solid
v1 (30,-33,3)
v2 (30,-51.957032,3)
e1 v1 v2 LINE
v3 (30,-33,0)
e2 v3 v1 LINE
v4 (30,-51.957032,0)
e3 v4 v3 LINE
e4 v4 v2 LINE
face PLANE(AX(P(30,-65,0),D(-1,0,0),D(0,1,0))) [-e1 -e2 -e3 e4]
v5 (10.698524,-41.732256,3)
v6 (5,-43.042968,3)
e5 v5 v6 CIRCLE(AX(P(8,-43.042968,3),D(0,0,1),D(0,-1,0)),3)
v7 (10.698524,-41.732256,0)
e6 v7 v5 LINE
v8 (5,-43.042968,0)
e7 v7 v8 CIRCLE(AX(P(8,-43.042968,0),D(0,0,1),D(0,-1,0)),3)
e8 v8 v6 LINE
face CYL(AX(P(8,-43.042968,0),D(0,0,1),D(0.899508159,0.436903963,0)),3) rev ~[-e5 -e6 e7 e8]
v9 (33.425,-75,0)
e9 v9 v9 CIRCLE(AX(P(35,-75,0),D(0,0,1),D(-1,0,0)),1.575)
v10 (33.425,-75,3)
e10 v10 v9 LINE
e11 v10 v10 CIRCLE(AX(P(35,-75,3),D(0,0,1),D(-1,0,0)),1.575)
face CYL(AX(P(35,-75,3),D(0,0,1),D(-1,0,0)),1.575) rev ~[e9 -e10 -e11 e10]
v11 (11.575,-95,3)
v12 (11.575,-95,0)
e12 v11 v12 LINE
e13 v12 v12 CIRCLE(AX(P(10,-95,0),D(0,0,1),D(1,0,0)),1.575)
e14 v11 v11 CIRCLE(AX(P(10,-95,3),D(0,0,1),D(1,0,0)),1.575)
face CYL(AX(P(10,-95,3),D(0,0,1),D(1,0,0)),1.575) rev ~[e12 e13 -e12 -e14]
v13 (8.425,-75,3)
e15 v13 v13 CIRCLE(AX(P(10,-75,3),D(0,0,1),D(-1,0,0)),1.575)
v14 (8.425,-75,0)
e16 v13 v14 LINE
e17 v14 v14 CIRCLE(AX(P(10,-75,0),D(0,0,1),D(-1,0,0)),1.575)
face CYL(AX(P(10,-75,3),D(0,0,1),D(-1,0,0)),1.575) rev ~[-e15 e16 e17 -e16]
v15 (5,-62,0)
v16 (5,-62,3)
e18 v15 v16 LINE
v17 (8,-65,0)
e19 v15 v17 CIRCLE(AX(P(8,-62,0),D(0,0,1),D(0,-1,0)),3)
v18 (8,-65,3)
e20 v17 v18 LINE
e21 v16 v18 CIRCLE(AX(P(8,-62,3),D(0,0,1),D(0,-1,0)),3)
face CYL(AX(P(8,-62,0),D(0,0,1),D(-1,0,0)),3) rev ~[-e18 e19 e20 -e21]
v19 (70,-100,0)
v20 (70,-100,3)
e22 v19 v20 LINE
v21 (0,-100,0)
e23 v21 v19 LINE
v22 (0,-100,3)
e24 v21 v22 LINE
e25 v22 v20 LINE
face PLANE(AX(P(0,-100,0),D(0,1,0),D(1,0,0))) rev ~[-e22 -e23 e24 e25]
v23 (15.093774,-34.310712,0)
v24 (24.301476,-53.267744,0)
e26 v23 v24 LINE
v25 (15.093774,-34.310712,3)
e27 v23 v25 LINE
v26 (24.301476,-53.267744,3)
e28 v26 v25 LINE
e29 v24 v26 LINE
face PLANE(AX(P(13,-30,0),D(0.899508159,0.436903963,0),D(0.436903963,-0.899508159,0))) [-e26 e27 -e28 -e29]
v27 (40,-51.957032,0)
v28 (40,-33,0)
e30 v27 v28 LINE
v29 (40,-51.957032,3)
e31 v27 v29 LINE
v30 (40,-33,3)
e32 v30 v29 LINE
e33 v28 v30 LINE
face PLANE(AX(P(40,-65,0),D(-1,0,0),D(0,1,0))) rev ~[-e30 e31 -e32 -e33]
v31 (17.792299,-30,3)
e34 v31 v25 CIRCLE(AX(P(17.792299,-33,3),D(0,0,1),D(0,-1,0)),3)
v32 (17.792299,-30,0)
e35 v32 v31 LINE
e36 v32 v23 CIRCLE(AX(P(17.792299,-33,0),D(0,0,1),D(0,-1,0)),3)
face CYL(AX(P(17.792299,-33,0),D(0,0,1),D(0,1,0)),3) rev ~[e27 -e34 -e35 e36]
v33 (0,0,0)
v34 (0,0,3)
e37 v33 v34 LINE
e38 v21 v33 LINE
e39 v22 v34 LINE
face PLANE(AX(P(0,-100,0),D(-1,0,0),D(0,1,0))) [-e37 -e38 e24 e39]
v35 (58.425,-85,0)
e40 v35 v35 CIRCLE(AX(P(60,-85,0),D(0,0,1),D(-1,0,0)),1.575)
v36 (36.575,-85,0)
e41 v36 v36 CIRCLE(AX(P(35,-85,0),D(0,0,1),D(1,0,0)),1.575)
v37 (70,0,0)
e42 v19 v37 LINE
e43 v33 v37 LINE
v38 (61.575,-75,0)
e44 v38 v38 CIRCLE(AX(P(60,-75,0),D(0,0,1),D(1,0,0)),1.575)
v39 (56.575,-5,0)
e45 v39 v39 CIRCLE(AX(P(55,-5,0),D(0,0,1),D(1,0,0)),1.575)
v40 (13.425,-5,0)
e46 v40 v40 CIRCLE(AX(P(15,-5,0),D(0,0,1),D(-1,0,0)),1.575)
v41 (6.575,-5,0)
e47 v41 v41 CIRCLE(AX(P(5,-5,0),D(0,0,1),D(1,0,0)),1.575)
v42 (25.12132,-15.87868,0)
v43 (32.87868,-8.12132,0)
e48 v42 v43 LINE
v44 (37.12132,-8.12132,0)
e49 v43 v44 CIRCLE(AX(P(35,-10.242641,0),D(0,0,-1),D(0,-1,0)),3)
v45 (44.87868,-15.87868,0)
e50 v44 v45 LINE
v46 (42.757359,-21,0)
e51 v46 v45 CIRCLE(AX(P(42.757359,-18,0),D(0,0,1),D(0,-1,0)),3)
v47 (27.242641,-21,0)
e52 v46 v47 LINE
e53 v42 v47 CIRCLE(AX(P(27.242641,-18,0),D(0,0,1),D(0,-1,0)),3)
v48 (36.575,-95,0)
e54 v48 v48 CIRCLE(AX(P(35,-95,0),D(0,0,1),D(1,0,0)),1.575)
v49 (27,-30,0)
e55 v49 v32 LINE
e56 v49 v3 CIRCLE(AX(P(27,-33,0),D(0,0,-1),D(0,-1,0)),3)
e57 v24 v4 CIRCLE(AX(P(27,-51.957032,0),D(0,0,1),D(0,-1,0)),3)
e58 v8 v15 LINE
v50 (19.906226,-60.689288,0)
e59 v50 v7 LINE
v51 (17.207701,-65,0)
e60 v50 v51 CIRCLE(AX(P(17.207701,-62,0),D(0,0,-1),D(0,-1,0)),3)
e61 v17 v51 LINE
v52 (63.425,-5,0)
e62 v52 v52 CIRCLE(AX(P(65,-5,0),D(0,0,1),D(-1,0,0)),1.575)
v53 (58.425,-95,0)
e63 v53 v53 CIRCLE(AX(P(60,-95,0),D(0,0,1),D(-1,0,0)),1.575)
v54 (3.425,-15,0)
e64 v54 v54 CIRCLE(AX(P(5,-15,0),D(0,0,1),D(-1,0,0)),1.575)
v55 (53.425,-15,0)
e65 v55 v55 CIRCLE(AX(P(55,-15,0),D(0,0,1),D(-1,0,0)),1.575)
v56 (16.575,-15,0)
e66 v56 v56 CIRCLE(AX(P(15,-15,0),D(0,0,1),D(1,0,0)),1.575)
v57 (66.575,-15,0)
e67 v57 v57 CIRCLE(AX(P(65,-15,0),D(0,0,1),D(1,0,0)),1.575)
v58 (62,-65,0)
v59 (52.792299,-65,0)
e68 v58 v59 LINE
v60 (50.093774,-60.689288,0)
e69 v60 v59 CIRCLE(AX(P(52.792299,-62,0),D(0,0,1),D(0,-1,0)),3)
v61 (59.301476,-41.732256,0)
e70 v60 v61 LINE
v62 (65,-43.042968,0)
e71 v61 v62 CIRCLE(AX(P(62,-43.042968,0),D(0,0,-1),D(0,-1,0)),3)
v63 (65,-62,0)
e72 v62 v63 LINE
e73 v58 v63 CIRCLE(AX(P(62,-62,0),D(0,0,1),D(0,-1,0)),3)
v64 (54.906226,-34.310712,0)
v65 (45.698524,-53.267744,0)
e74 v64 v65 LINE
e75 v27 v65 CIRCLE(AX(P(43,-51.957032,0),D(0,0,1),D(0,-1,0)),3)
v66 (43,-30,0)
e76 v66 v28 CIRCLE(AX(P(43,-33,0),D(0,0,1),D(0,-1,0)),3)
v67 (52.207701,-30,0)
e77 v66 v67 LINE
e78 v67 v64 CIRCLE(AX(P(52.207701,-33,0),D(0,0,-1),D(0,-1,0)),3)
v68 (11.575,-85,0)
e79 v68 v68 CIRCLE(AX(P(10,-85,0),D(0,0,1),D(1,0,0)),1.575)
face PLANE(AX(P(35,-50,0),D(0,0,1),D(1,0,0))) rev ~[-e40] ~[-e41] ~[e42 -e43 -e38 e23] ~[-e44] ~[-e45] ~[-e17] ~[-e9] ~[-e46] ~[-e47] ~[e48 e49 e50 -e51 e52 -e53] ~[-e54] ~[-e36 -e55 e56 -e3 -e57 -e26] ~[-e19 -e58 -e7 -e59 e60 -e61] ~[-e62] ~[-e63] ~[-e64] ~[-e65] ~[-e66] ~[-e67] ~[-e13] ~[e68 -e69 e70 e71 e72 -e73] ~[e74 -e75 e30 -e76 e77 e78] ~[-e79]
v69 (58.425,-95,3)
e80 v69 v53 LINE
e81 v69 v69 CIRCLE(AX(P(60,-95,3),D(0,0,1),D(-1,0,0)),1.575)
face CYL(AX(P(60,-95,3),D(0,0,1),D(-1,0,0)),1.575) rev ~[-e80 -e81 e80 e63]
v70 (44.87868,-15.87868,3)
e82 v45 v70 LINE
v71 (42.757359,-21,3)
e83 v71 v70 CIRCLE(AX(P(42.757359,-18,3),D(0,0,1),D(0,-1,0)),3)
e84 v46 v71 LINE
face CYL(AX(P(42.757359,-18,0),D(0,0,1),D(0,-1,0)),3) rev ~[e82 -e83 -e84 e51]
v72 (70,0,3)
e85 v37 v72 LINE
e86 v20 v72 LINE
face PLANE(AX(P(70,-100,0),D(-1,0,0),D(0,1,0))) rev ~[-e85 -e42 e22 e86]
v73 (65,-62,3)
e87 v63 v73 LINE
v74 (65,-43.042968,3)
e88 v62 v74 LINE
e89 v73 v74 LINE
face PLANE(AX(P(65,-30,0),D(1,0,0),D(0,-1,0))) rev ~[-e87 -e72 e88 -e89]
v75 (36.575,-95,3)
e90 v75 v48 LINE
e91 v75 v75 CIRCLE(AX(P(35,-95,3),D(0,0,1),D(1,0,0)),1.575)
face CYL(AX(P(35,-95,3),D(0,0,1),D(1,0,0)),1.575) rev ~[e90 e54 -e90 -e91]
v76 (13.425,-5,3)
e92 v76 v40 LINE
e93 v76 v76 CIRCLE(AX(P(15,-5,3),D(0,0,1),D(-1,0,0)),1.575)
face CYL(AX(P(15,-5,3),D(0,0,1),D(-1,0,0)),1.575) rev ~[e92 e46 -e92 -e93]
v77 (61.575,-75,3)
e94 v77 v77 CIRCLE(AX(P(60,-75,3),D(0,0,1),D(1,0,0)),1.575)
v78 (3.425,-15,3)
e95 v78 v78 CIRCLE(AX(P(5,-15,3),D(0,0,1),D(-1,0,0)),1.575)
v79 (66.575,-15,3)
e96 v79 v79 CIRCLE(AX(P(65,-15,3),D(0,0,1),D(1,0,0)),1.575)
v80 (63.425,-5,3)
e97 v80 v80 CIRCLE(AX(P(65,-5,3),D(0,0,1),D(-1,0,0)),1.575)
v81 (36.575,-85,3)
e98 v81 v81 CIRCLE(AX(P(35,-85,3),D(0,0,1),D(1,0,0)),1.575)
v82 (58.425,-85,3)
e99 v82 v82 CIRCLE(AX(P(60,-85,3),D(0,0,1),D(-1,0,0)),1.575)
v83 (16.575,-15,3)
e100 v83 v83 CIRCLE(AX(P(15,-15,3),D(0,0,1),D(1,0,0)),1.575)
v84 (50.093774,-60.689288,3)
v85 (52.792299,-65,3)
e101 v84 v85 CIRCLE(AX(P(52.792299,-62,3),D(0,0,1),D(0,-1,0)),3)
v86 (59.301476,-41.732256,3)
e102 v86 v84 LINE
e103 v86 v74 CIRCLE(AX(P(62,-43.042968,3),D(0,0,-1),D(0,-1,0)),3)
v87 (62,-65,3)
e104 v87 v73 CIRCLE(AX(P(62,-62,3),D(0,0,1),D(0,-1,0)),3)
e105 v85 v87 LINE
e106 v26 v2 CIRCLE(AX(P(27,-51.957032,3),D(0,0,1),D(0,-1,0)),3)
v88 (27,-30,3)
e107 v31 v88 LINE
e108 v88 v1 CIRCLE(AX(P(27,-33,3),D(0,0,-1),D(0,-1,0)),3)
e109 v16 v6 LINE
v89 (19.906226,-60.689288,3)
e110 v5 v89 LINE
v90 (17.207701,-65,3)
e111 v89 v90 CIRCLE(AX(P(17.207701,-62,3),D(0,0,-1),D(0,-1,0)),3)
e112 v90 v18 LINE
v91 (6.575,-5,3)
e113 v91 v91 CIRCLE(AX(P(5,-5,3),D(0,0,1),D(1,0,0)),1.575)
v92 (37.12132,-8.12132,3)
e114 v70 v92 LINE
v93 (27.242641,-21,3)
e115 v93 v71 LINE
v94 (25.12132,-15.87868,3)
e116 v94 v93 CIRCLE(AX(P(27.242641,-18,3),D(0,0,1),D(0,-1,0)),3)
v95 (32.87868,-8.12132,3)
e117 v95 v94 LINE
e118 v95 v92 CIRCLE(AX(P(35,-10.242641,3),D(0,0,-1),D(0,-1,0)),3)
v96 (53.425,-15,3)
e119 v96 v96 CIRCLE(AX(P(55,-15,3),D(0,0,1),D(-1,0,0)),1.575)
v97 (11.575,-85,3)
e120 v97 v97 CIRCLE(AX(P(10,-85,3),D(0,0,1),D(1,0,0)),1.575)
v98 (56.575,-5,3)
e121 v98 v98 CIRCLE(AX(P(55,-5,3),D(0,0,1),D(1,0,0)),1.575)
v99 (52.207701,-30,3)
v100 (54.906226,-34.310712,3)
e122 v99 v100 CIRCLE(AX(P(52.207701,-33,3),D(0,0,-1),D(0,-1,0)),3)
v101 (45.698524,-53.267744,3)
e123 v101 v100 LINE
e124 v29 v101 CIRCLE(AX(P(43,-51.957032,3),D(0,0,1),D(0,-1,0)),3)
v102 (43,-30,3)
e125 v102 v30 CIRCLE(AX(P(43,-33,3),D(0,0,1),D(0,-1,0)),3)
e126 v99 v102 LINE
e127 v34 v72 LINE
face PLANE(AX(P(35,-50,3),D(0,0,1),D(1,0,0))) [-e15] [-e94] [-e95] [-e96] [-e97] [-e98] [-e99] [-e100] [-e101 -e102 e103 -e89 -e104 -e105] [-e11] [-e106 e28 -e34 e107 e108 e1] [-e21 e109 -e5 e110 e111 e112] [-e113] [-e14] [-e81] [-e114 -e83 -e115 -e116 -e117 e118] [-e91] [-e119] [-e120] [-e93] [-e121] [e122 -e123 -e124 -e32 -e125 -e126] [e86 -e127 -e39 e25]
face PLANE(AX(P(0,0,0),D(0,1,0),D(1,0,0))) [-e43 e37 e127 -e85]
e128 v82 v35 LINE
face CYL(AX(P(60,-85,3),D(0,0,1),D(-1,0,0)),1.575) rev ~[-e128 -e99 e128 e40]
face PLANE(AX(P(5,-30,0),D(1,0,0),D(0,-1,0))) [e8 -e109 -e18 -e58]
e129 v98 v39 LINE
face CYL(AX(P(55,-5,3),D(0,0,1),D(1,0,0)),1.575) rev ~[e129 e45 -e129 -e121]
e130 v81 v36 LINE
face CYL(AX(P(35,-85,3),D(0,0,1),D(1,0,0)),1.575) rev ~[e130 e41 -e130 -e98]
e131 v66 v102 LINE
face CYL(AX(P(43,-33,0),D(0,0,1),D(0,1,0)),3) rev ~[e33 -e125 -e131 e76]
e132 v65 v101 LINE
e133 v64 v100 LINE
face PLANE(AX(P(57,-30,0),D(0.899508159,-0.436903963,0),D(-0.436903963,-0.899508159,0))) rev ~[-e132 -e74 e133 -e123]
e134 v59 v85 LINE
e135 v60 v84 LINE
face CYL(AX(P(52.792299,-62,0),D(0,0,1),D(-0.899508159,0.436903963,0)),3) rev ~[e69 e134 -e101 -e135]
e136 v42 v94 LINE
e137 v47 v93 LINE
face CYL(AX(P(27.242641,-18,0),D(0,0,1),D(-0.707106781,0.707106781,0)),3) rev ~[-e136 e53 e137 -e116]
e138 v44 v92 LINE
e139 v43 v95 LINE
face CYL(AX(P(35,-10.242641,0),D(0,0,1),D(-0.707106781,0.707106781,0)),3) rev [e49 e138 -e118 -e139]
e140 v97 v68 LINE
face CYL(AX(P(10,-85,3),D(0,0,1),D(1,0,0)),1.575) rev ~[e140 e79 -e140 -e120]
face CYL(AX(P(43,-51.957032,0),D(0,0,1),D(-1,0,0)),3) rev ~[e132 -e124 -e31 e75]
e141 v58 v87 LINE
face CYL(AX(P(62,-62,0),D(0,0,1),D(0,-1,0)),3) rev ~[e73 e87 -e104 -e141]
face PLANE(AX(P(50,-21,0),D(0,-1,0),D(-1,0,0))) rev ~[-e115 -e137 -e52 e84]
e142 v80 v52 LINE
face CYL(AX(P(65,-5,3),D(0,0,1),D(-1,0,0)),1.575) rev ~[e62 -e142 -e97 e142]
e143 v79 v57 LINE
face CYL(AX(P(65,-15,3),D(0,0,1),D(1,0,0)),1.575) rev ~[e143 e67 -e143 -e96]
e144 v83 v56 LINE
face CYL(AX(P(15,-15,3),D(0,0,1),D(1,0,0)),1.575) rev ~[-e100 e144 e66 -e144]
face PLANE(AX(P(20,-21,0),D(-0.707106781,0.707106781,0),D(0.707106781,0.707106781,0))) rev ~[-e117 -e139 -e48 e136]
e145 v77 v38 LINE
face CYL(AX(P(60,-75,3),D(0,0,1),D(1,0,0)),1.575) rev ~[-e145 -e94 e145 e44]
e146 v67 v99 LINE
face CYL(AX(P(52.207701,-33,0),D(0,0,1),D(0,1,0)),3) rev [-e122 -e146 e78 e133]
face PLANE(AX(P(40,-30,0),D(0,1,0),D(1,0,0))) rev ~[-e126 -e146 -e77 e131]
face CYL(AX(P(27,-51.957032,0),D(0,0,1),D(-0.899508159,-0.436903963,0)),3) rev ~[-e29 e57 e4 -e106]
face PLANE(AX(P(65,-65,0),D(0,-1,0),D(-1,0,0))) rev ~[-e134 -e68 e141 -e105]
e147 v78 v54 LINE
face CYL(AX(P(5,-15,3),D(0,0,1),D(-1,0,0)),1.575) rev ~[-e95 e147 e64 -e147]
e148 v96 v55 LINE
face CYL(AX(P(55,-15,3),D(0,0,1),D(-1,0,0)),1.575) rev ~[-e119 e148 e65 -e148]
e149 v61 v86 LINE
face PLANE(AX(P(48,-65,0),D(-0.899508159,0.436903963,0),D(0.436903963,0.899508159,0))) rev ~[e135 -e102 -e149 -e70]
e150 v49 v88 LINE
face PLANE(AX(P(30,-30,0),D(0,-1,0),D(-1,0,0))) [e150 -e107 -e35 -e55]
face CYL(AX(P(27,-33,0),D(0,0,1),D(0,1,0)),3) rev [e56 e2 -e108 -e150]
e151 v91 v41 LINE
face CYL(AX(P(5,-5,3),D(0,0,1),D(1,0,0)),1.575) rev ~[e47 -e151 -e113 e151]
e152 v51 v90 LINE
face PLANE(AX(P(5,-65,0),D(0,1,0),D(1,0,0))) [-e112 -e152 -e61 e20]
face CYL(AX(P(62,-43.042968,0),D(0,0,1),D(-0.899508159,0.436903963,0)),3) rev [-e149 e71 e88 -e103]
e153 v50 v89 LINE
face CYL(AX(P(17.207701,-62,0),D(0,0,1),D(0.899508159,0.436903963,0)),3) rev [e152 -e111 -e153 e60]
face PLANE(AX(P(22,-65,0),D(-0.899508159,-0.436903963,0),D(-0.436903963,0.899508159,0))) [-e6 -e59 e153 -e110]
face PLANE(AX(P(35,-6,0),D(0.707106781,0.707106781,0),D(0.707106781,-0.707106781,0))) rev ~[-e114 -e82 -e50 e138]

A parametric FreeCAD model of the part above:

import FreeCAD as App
import Part
import Sketcher


def edges_at(feature, points):
    """Names of the edges that pass closest to the given points."""
    edges = feature.Shape.Edges
    near = lambda p: min(range(len(edges)), key=lambda i: edges[i].distToShape(Part.Vertex(*p))[0])
    return sorted({f"Edge{near(p) + 1}" for p in points})

doc = App.newDocument("Part")
body = doc.addObject("PartDesign::Body", "Body")

sketch1 = body.newObject("Sketcher::SketchObject", "Sketch")
sketch1.AttachmentSupport = (doc.getObject("XY_Plane"), [""])
sketch1.MapMode = "FlatFace"
sketch1.addGeometry([
    Part.LineSegment(App.Vector(0, 0, 0), App.Vector(0, -100, 0)),
    Part.LineSegment(App.Vector(0, -100, 0), App.Vector(70, -100, 0)),
    Part.LineSegment(App.Vector(70, -100, 0), App.Vector(70, 0, 0)),
    Part.LineSegment(App.Vector(70, 0, 0), App.Vector(0, 0, 0)),
], False)
sketch1.addConstraint([
    Sketcher.Constraint("Coincident", 0, 2, 1, 1),
    Sketcher.Constraint("Coincident", 1, 2, 2, 1),
    Sketcher.Constraint("Coincident", 2, 2, 3, 1),
    Sketcher.Constraint("Coincident", 3, 2, 0, 1),
    Sketcher.Constraint("Vertical", 0),
    Sketcher.Constraint("Horizontal", 1),
    Sketcher.Constraint("Vertical", 2),
    Sketcher.Constraint("Horizontal", 3),
    Sketcher.Constraint("Coincident", 3, 2, -1, 1),
    Sketcher.Constraint("DistanceX", 1, 1, 1, 2, 70.0),
    Sketcher.Constraint("DistanceY", 0, 2, 0, 1, 100.0),
])
pad1 = body.newObject("PartDesign::Pad", "Pad")
pad1.Profile = sketch1
pad1.Length = 3

sketch2 = body.newObject("Sketcher::SketchObject", "Sketch001")
sketch2.AttachmentSupport = (doc.getObject("XY_Plane"), [""])
sketch2.MapMode = "FlatFace"
sketch2.AttachmentOffset = App.Placement(App.Vector(0, 0, 3), App.Rotation())
sketch2.addGeometry([
    Part.Circle(App.Vector(5, -5, 0), App.Vector(0, 0, 1), 1.6),
    Part.Circle(App.Vector(15, -5, 0), App.Vector(0, 0, 1), 1.6),
    Part.Circle(App.Vector(15, -15, 0), App.Vector(0, 0, 1), 1.6),
    Part.Circle(App.Vector(5, -15, 0), App.Vector(0, 0, 1), 1.6),
    Part.Circle(App.Vector(65, -15, 0), App.Vector(0, 0, 1), 1.6),
    Part.Circle(App.Vector(55, -15, 0), App.Vector(0, 0, 1), 1.6),
    Part.Circle(App.Vector(55, -5, 0), App.Vector(0, 0, 1), 1.6),
    Part.Circle(App.Vector(65, -5, 0), App.Vector(0, 0, 1), 1.6),
    Part.Circle(App.Vector(10, -85, 0), App.Vector(0, 0, 1), 1.6),
    Part.Circle(App.Vector(35, -85, 0), App.Vector(0, 0, 1), 1.6),
    Part.Circle(App.Vector(60, -85, 0), App.Vector(0, 0, 1), 1.6),
    Part.Circle(App.Vector(60, -75, 0), App.Vector(0, 0, 1), 1.6),
    Part.Circle(App.Vector(35, -75, 0), App.Vector(0, 0, 1), 1.6),
    Part.Circle(App.Vector(10, -75, 0), App.Vector(0, 0, 1), 1.6),
    Part.Circle(App.Vector(10, -95, 0), App.Vector(0, 0, 1), 1.6),
    Part.Circle(App.Vector(35, -95, 0), App.Vector(0, 0, 1), 1.6),
    Part.Circle(App.Vector(60, -95, 0), App.Vector(0, 0, 1), 1.6),
], False)
sketch2.addConstraint([
    Sketcher.Constraint("Equal", 0, 1),
    Sketcher.Constraint("Equal", 1, 2),
    Sketcher.Constraint("Equal", 2, 3),
    Sketcher.Constraint("Equal", 3, 4),
    Sketcher.Constraint("Equal", 4, 5),
    Sketcher.Constraint("Equal", 5, 6),
    Sketcher.Constraint("Equal", 6, 7),
    Sketcher.Constraint("Equal", 7, 8),
    Sketcher.Constraint("Equal", 8, 9),
    Sketcher.Constraint("Equal", 9, 10),
    Sketcher.Constraint("Equal", 10, 11),
    Sketcher.Constraint("Equal", 11, 12),
    Sketcher.Constraint("Equal", 12, 13),
    Sketcher.Constraint("Equal", 13, 14),
    Sketcher.Constraint("Equal", 14, 15),
    Sketcher.Constraint("Equal", 15, 16),
    Sketcher.Constraint("Horizontal", 0, 3, 1, 3),
    Sketcher.Constraint("Horizontal", 2, 3, 3, 3),
    Sketcher.Constraint("Horizontal", 3, 3, 4, 3),
    Sketcher.Constraint("Horizontal", 4, 3, 5, 3),
    Sketcher.Constraint("Horizontal", 1, 3, 6, 3),
    Sketcher.Constraint("Horizontal", 6, 3, 7, 3),
    Sketcher.Constraint("Horizontal", 8, 3, 9, 3),
    Sketcher.Constraint("Horizontal", 9, 3, 10, 3),
    Sketcher.Constraint("Horizontal", 11, 3, 12, 3),
    Sketcher.Constraint("Horizontal", 12, 3, 13, 3),
    Sketcher.Constraint("Horizontal", 14, 3, 15, 3),
    Sketcher.Constraint("Horizontal", 15, 3, 16, 3),
    Sketcher.Constraint("Vertical", 1, 3, 2, 3),
    Sketcher.Constraint("Vertical", 0, 3, 3, 3),
    Sketcher.Constraint("Vertical", 5, 3, 6, 3),
    Sketcher.Constraint("Vertical", 4, 3, 7, 3),
    Sketcher.Constraint("Vertical", 10, 3, 11, 3),
    Sketcher.Constraint("Vertical", 9, 3, 12, 3),
    Sketcher.Constraint("Vertical", 8, 3, 13, 3),
    Sketcher.Constraint("Vertical", 13, 3, 14, 3),
    Sketcher.Constraint("Vertical", 12, 3, 15, 3),
    Sketcher.Constraint("Vertical", 11, 3, 16, 3),
    Sketcher.Constraint("Diameter", 0, 3.15),
    Sketcher.Constraint("DistanceX", -1, 1, 0, 3, 5.0),
    Sketcher.Constraint("DistanceY", 0, 3, -1, 1, 5.0),
    Sketcher.Constraint("DistanceX", -1, 1, 1, 3, 15.0),
    Sketcher.Constraint("DistanceY", 2, 3, -1, 1, 15.0),
    Sketcher.Constraint("DistanceX", -1, 1, 4, 3, 65.0),
    Sketcher.Constraint("DistanceX", -1, 1, 5, 3, 55.0),
    Sketcher.Constraint("DistanceX", -1, 1, 8, 3, 10.0),
    Sketcher.Constraint("DistanceY", 8, 3, -1, 1, 85.0),
    Sketcher.Constraint("DistanceX", -1, 1, 9, 3, 35.0),
    Sketcher.Constraint("DistanceX", -1, 1, 10, 3, 60.0),
    Sketcher.Constraint("DistanceY", 11, 3, -1, 1, 75.0),
    Sketcher.Constraint("DistanceY", 14, 3, -1, 1, 95.0),
])
pocket1 = body.newObject("PartDesign::Pocket", "Pocket")
pocket1.Profile = sketch2
pocket1.Type = "ThroughAll"

sketch3 = body.newObject("Sketcher::SketchObject", "Sketch002")
sketch3.AttachmentSupport = (doc.getObject("XY_Plane"), [""])
sketch3.MapMode = "FlatFace"
sketch3.addGeometry([
    Part.LineSegment(App.Vector(65, -30, 0), App.Vector(65, -65, 0)),
    Part.LineSegment(App.Vector(65, -65, 0), App.Vector(48, -65, 0)),
    Part.LineSegment(App.Vector(48, -65, 0), App.Vector(65, -30, 0)),
    Part.LineSegment(App.Vector(57, -30, 0), App.Vector(40, -65, 0)),
    Part.LineSegment(App.Vector(40, -65, 0), App.Vector(40, -30, 0)),
    Part.LineSegment(App.Vector(40, -30, 0), App.Vector(57, -30, 0)),
    Part.LineSegment(App.Vector(13, -30, 0), App.Vector(30, -30, 0)),
    Part.LineSegment(App.Vector(30, -30, 0), App.Vector(30, -65, 0)),
    Part.LineSegment(App.Vector(30, -65, 0), App.Vector(13, -30, 0)),
    Part.LineSegment(App.Vector(5, -30, 0), App.Vector(22, -65, 0)),
    Part.LineSegment(App.Vector(22, -65, 0), App.Vector(5, -65, 0)),
    Part.LineSegment(App.Vector(5, -65, 0), App.Vector(5, -30, 0)),
    Part.LineSegment(App.Vector(35, -6, 0), App.Vector(50, -21, 0)),
    Part.LineSegment(App.Vector(50, -21, 0), App.Vector(20, -21, 0)),
    Part.LineSegment(App.Vector(20, -21, 0), App.Vector(35, -6, 0)),
], False)
sketch3.addConstraint([
    Sketcher.Constraint("Coincident", 0, 2, 1, 1),
    Sketcher.Constraint("Coincident", 1, 2, 2, 1),
    Sketcher.Constraint("Coincident", 2, 2, 0, 1),
    Sketcher.Constraint("Coincident", 3, 2, 4, 1),
    Sketcher.Constraint("Coincident", 4, 2, 5, 1),
    Sketcher.Constraint("Coincident", 5, 2, 3, 1),
    Sketcher.Constraint("Coincident", 6, 2, 7, 1),
    Sketcher.Constraint("Coincident", 7, 2, 8, 1),
    Sketcher.Constraint("Coincident", 8, 2, 6, 1),
    Sketcher.Constraint("Coincident", 9, 2, 10, 1),
    Sketcher.Constraint("Coincident", 10, 2, 11, 1),
    Sketcher.Constraint("Coincident", 11, 2, 9, 1),
    Sketcher.Constraint("Coincident", 12, 2, 13, 1),
    Sketcher.Constraint("Coincident", 13, 2, 14, 1),
    Sketcher.Constraint("Coincident", 14, 2, 12, 1),
    Sketcher.Constraint("Vertical", 0),
    Sketcher.Constraint("Horizontal", 1),
    Sketcher.Constraint("Vertical", 4),
    Sketcher.Constraint("Horizontal", 5),
    Sketcher.Constraint("Horizontal", 6),
    Sketcher.Constraint("Vertical", 7),
    Sketcher.Constraint("Horizontal", 10),
    Sketcher.Constraint("Vertical", 11),
    Sketcher.Constraint("Horizontal", 13),
    Sketcher.Constraint("Parallel", 2, 3),
    Sketcher.Constraint("Parallel", 8, 9),
    Sketcher.Constraint("Perpendicular", 12, 14),
    Sketcher.Constraint("Horizontal", 1, 2, 3, 2),
    Sketcher.Constraint("Horizontal", 2, 2, 4, 2),
    Sketcher.Constraint("Horizontal", 5, 2, 6, 2),
    Sketcher.Constraint("Horizontal", 3, 2, 7, 2),
    Sketcher.Constraint("Horizontal", 7, 2, 9, 2),
    Sketcher.Constraint("Horizontal", 8, 2, 11, 2),
    Sketcher.Constraint("Equal", 5, 6),
    Sketcher.Constraint("Equal", 12, 14),
    Sketcher.Constraint("DistanceX", 1, 2, 1, 1, 17.0),
    Sketcher.Constraint("DistanceX", 13, 2, 13, 1, 30.0),
    Sketcher.Constraint("DistanceY", 0, 2, 0, 1, 35.0),
    Sketcher.Constraint("DistanceX", -1, 1, 0, 2, 65.0),
    Sketcher.Constraint("DistanceY", 0, 2, -1, 1, 65.0),
    Sketcher.Constraint("DistanceX", -1, 1, 3, 2, 40.0),
    Sketcher.Constraint("DistanceX", -1, 1, 6, 2, 30.0),
    Sketcher.Constraint("DistanceX", -1, 1, 9, 2, 22.0),
    Sketcher.Constraint("DistanceX", -1, 1, 12, 2, 50.0),
    Sketcher.Constraint("DistanceY", 12, 2, -1, 1, 21.0),
])
pocket2 = body.newObject("PartDesign::Pocket", "Pocket001")
pocket2.Profile = sketch3
pocket2.Type = "ThroughAll"
pocket2.Reversed = True
doc.recompute()

fillet = body.newObject("PartDesign::Fillet", "Fillet")
fillet.Base = (pocket2, edges_at(pocket2, [
    (57, -30, 1.5),
    (40, -30, 1.5),
    (40, -65, 1.5),
    (30, -65, 1.5),
    (30, -30, 1.5),
    (13, -30, 1.5),
    (5, -65, 1.5),
    (22, -65, 1.5),
    (5, -30, 1.5),
    (35, -6, 1.5),
    (20, -21, 1.5),
    (50, -21, 1.5),
    (65, -30, 1.5),
    (48, -65, 1.5),
    (65, -65, 1.5),
]))
fillet.Radius = 3

doc.recompute()
